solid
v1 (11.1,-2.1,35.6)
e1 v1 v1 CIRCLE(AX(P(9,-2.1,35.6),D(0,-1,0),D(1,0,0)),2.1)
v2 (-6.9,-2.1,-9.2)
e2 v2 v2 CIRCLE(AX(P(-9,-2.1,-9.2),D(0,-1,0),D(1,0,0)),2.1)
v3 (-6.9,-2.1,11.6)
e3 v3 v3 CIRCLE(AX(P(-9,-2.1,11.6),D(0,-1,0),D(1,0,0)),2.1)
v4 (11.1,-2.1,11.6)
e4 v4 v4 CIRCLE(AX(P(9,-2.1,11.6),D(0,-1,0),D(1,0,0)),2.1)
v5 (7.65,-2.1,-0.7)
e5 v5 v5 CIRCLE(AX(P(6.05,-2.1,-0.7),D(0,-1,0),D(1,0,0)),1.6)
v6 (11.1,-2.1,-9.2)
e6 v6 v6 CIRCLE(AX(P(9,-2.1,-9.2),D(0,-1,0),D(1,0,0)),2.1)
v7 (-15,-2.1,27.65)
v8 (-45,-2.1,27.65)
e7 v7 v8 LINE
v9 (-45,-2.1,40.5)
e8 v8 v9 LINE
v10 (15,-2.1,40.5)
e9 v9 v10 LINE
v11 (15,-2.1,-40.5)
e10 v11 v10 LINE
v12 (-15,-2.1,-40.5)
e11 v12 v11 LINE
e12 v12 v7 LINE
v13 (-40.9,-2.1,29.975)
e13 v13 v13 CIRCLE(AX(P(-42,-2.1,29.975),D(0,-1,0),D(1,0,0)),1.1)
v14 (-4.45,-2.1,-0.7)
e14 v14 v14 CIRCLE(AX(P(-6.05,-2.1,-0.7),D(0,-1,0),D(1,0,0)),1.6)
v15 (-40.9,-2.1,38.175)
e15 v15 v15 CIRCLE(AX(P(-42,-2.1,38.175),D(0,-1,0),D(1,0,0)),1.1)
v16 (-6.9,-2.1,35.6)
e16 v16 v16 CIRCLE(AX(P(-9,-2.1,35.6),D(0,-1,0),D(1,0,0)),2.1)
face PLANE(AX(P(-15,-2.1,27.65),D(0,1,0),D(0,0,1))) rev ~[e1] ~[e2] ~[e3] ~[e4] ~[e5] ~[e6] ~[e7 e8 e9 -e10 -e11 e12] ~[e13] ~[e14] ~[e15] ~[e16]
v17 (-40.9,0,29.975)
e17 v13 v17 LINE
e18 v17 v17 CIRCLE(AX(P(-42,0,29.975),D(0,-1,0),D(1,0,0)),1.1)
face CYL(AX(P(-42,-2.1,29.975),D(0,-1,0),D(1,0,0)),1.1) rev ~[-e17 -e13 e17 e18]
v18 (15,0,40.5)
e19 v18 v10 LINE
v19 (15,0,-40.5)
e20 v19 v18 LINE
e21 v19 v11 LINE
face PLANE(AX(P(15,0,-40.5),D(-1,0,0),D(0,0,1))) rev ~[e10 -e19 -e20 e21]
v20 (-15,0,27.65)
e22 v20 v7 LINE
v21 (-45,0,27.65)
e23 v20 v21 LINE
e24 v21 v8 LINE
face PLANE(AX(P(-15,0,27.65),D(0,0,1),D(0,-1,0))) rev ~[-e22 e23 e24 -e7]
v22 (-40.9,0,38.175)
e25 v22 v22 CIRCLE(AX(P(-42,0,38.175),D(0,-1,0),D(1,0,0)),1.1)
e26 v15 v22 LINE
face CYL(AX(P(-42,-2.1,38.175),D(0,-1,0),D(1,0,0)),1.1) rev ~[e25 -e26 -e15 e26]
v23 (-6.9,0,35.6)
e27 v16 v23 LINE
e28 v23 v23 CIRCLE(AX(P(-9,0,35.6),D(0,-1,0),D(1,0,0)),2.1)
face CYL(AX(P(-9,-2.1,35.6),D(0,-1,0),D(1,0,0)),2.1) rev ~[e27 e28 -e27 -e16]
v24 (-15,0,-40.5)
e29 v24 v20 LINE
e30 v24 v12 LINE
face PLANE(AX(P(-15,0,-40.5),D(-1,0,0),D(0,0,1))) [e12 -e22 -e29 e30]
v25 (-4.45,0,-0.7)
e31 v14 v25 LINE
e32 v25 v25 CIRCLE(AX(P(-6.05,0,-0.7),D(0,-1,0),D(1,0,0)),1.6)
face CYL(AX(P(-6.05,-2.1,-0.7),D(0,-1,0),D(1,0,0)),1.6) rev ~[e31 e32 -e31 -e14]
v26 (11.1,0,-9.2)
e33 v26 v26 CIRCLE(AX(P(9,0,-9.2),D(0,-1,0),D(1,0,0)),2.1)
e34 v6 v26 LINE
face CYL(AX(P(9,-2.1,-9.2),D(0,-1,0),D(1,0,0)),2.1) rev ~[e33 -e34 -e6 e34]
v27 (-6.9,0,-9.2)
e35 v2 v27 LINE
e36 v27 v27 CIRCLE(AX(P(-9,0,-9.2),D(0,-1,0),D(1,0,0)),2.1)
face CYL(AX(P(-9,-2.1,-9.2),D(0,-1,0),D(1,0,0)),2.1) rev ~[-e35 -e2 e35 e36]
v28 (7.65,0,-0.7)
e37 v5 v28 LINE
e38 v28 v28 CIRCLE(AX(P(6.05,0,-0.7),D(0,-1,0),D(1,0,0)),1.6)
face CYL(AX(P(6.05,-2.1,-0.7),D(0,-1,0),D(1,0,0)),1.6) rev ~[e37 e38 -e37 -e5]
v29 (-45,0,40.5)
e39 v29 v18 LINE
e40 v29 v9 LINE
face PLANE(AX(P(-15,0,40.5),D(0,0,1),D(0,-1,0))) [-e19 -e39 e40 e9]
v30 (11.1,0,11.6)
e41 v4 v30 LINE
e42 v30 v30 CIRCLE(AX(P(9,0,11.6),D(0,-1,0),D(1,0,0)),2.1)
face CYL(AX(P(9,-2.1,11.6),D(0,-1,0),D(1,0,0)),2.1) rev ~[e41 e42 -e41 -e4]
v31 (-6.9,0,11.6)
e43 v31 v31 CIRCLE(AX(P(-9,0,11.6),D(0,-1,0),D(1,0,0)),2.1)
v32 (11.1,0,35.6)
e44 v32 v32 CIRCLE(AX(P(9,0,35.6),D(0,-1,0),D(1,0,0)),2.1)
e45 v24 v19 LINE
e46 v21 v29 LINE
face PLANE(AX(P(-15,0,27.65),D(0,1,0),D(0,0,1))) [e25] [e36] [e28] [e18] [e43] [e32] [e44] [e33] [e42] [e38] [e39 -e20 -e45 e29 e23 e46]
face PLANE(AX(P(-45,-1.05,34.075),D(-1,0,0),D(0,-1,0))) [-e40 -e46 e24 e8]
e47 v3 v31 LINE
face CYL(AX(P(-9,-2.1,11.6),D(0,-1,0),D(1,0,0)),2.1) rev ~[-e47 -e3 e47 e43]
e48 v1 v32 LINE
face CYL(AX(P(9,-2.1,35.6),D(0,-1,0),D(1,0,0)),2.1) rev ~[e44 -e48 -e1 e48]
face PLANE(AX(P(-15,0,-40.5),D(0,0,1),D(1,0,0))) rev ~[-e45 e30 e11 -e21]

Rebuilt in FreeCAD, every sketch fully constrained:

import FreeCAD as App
import Part
import Sketcher
from FreeCAD import Vector
Q = App.Units.Quantity

doc = App.newDocument("Part")
body = doc.addObject("PartDesign::Body", "Body")

# Sketch on XZ plane
sketch1 = body.newObject("Sketcher::SketchObject", "Sketch")
sketch1.AttachmentSupport = (doc.getObject("XZ_Plane"), [""])
sketch1.MapMode = "FlatFace"
sketch1.addGeometry([
    Part.LineSegment(Vector(-15, 40, 0), Vector(-15, -40, 0)),
    Part.LineSegment(Vector(-15, -40, 0), Vector(15, -40, 0)),
    Part.LineSegment(Vector(15, -40, 0), Vector(15, 40, 0)),
    Part.LineSegment(Vector(15, 40, 0), Vector(-15, 40, 0)),
], False)
sketch1.addConstraint([
    Sketcher.Constraint("Coincident", 0, 2, 1, 1),
    Sketcher.Constraint("Coincident", 1, 2, 2, 1),
    Sketcher.Constraint("Coincident", 2, 2, 3, 1),
    Sketcher.Constraint("Coincident", 3, 2, 0, 1),
    Sketcher.Constraint("Vertical", 0),
    Sketcher.Constraint("Horizontal", 1),
    Sketcher.Constraint("Vertical", 2),
    Sketcher.Constraint("Horizontal", 3),
    Sketcher.Constraint("Symmetric", 0, 2, 2, 2, -1, 1),
    Sketcher.Constraint("DistanceX", 1, 1, 1, 2, Q("30 mm")),
    Sketcher.Constraint("DistanceY", 0, 2, 0, 1, Q("81 mm")),
])
pad1 = body.newObject("PartDesign::Pad", "Pad")
pad1.Profile = sketch1
pad1.Length = 2.1

# Sketch on XZ plane
sketch2 = body.newObject("Sketcher::SketchObject", "Sketch001")
sketch2.AttachmentSupport = (doc.getObject("XZ_Plane"), [""])
sketch2.MapMode = "FlatFace"
sketch2.AttachmentOffset = App.Placement(Vector(0, 0, 2.1), App.Rotation())
sketch2.addGeometry([
    Part.Circle(Vector(9, 35.6, 0), Vector(0, 0, 1), 2.1),  # 0
    Part.Circle(Vector(9, 11.6, 0), Vector(0, 0, 1), 2.1),  # 1
    Part.Circle(Vector(-9, 35.6, 0), Vector(0, 0, 1), 2.1),  # 2
    Part.Circle(Vector(-9, 11.6, 0), Vector(0, 0, 1), 2.1),  # 3
    Part.Circle(Vector(9, -9.2, 0), Vector(0, 0, 1), 2.1),  # 4
    Part.Circle(Vector(-9, -9.2, 0), Vector(0, 0, 1), 2.1),  # 5
    Part.Circle(Vector(6, -0.7, 0), Vector(0, 0, 1), 1.6),  # 6
    Part.Circle(Vector(-6, -0.7, 0), Vector(0, 0, 1), 1.6),  # 7
], False)
sketch2.addConstraint([
    Sketcher.Constraint("Equal", 0, 1),
    Sketcher.Constraint("Equal", 1, 2),
    Sketcher.Constraint("Equal", 2, 3),
    Sketcher.Constraint("Equal", 3, 4),
    Sketcher.Constraint("Equal", 4, 5),
    Sketcher.Constraint("Equal", 6, 7),
    Sketcher.Constraint("Symmetric", 0, 3, 2, 3, -2),
    Sketcher.Constraint("Symmetric", 1, 3, 3, 3, -2),
    Sketcher.Constraint("Symmetric", 4, 3, 5, 3, -2),
    Sketcher.Constraint("Symmetric", 6, 3, 7, 3, -2),
    Sketcher.Constraint("Vertical", 0, 3, 1, 3),
    Sketcher.Constraint("Vertical", 1, 3, 4, 3),
    Sketcher.Constraint("Diameter", 0, Q("4.2 mm")),
    Sketcher.Constraint("Diameter", 6, Q("3.2 mm")),
    Sketcher.Constraint("DistanceX", -1, 1, 0, 3, Q("9 mm")),
    Sketcher.Constraint("DistanceY", 1, 3, 0, 3, Q("24 mm")),
    Sketcher.Constraint("DistanceY", -1, 1, 0, 3, Q("35.6 mm")),
    Sketcher.Constraint("DistanceY", 4, 3, -1, 1, Q("9.2 mm")),
    Sketcher.Constraint("DistanceY", 6, 3, -1, 1, Q("0.7 mm")),
    Sketcher.Constraint("DistanceX", 7, 3, 6, 3, Q("12.1 mm")),
])
pocket1 = body.newObject("PartDesign::Pocket", "Pocket")
pocket1.Profile = sketch2
pocket1.Type = "ThroughAll"

# Sketch on YZ plane
sketch3 = body.newObject("Sketcher::SketchObject", "Sketch002")
sketch3.AttachmentSupport = (doc.getObject("YZ_Plane"), [""])
sketch3.MapMode = "FlatFace"
sketch3.AttachmentOffset = App.Placement(Vector(0, 0, -15), App.Rotation())
sketch3.addGeometry([
    Part.LineSegment(Vector(0, 40.5, 0), Vector(0, 27.6, 0)),
    Part.LineSegment(Vector(0, 27.6, 0), Vector(-2.1, 27.6, 0)),
    Part.LineSegment(Vector(-2.1, 27.6, 0), Vector(-2.1, 40.5, 0)),
    Part.LineSegment(Vector(-2.1, 40.5, 0), Vector(0, 40.5, 0)),
], False)
sketch3.addConstraint([
    Sketcher.Constraint("Coincident", 0, 2, 1, 1),
    Sketcher.Constraint("Coincident", 1, 2, 2, 1),
    Sketcher.Constraint("Coincident", 2, 2, 3, 1),
    Sketcher.Constraint("Coincident", 3, 2, 0, 1),
    Sketcher.Constraint("Vertical", 0),
    Sketcher.Constraint("Horizontal", 1),
    Sketcher.Constraint("Vertical", 2),
    Sketcher.Constraint("Horizontal", 3),
    Sketcher.Constraint("PointOnObject", 0, 2, -2),
    Sketcher.Constraint("DistanceX", 1, 2, 1, 1, Q("2.1 mm")),
    Sketcher.Constraint("DistanceY", 0, 2, 0, 1, Q("12.85 mm")),
    Sketcher.Constraint("DistanceY", -1, 1, 2, 2, Q("40.5 mm")),
])
pad2 = body.newObject("PartDesign::Pad", "Pad001")
pad2.Profile = sketch3
pad2.Length = 30
pad2.Reversed = True

# Sketch on XZ plane
sketch4 = body.newObject("Sketcher::SketchObject", "Sketch003")
sketch4.AttachmentSupport = (doc.getObject("XZ_Plane"), [""])
sketch4.MapMode = "FlatFace"
sketch4.AttachmentOffset = App.Placement(Vector(0, 0, 2.1), App.Rotation())
sketch4.addGeometry([
    Part.Circle(Vector(-42, 38.2, 0), Vector(0, 0, 1), 1.1),
    Part.Circle(Vector(-42, 30, 0), Vector(0, 0, 1), 1.1),
], False)
sketch4.addConstraint([
    Sketcher.Constraint("Equal", 0, 1),
    Sketcher.Constraint("Vertical", 0, 3, 1, 3),
    Sketcher.Constraint("Diameter", 0, Q("2.2 mm")),
    Sketcher.Constraint("DistanceX", 0, 3, -1, 1, Q("42 mm")),
    Sketcher.Constraint("DistanceY", 1, 3, 0, 3, Q("8.2 mm")),
    Sketcher.Constraint("DistanceY", -1, 1, 0, 3, Q("38.175 mm")),
])
pocket2 = body.newObject("PartDesign::Pocket", "Pocket001")
pocket2.Profile = sketch4
pocket2.Length = 25

doc.recompute()
